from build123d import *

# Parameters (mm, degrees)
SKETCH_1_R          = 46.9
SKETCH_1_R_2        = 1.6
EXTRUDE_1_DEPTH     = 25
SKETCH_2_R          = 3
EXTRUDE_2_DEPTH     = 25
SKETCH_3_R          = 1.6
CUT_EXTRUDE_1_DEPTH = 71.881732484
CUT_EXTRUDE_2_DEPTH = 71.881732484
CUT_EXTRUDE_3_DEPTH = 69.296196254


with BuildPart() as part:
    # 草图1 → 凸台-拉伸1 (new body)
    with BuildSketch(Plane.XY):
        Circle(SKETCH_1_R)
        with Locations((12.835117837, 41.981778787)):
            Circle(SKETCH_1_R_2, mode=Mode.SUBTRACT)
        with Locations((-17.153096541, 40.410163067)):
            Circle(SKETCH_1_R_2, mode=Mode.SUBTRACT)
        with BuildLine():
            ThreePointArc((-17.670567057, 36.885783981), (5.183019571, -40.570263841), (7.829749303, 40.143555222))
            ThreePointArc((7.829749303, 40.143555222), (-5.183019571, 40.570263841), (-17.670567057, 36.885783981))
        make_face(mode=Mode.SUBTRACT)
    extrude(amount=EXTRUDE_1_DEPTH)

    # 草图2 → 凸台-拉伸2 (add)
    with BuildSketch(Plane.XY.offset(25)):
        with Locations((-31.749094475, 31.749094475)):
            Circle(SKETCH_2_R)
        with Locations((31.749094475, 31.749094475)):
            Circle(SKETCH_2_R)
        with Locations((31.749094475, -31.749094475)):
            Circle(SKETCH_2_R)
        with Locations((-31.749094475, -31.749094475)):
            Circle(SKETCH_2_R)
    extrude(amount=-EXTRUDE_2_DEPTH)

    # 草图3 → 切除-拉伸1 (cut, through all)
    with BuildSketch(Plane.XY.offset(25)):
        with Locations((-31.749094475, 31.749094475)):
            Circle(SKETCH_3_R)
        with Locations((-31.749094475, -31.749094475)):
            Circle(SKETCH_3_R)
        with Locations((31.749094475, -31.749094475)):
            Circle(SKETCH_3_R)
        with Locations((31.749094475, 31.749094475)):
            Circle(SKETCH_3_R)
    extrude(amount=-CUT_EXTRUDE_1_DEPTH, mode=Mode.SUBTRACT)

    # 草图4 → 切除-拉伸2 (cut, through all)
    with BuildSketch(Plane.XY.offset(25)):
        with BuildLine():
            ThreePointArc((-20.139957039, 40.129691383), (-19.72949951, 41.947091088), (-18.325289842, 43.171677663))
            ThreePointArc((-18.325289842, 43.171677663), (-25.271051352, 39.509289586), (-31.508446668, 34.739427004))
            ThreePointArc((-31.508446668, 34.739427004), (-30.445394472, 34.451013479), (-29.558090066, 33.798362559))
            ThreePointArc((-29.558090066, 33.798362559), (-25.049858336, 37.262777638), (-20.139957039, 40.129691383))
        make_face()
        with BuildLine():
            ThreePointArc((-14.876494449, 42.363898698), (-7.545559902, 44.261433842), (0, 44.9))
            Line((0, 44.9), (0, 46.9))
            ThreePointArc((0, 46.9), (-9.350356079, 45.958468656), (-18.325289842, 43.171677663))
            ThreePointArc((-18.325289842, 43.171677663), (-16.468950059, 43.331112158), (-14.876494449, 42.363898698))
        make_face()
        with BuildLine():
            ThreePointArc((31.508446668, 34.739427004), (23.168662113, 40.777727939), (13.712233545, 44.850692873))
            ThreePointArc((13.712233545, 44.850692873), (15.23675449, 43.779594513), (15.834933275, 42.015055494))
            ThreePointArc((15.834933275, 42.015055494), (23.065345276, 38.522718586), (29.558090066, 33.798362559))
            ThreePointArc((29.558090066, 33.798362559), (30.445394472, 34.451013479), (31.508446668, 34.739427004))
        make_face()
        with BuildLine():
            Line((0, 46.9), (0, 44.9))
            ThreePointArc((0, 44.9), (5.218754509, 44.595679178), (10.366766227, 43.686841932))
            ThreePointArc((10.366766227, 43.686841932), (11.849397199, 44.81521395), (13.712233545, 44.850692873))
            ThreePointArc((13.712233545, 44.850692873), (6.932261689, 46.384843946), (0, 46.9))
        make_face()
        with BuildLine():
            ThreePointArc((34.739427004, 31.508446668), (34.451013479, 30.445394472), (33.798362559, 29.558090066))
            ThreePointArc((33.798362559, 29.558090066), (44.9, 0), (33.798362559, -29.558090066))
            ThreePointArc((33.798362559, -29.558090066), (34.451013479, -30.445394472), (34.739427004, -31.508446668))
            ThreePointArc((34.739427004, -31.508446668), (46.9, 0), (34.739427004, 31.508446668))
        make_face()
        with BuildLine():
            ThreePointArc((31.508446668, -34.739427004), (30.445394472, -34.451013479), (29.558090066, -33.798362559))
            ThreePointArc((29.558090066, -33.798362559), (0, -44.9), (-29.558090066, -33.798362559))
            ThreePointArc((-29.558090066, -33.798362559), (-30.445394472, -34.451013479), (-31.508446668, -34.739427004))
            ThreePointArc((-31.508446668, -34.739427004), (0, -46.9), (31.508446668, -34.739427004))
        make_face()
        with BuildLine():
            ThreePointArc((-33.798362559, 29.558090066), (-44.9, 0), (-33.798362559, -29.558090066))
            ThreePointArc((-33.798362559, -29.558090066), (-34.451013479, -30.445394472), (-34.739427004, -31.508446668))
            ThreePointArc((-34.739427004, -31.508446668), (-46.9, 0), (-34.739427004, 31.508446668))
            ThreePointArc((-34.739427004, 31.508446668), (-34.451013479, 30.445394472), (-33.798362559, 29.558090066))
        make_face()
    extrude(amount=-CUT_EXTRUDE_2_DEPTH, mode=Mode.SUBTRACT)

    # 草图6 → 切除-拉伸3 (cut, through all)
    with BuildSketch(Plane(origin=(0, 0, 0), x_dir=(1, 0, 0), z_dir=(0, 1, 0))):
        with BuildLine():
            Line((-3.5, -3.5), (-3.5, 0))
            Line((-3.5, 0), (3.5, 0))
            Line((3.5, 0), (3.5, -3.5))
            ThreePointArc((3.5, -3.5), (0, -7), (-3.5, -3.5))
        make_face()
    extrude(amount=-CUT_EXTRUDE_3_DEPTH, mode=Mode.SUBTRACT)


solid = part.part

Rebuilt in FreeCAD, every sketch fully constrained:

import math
import FreeCAD as App
import Part
import Sketcher

doc = App.newDocument("Part")
body = doc.addObject("PartDesign::Body", "Body")

# Sketch on XY plane
sketch1 = doc.addObject("Sketcher::SketchObject", "Sketch")
body.addObject(sketch1)
sketch1.AttachmentSupport = (doc.XY_Plane, [""])
sketch1.MapMode = "FlatFace"
sketch1.addGeometry(Part.Circle(App.Vector(0, 0, 0), App.Vector(0, 0, 1), 46.9), False)
sketch1.addGeometry(Part.ArcOfCircle(Part.Circle(App.Vector(0, 0, 0), App.Vector(0, 0, 1), 40.9), math.radians(116), math.radians(439)), False)
sketch1.addGeometry(Part.ArcOfCircle(Part.Circle(App.Vector(0, 0, 0), App.Vector(0, 0, 1), 40.9), math.radians(79), math.radians(116)), False)
sketch1.addGeometry(Part.Circle(App.Vector(-17.2, 40.4, 0), App.Vector(0, 0, 1), 1.6), False)
sketch1.addGeometry(Part.Circle(App.Vector(12.8, 42, 0), App.Vector(0, 0, 1), 1.6), False)
sketch1.addConstraint(Sketcher.Constraint("Tangent", 1, 1, 2, 2))
sketch1.addConstraint(Sketcher.Constraint("Coincident", 2, 1, 1, 2))
sketch1.addConstraint(Sketcher.Constraint("Coincident", 0, 3, -1, 1))
sketch1.addConstraint(Sketcher.Constraint("Coincident", 1, 3, -1, 1))
sketch1.addConstraint(Sketcher.Constraint("Equal", 3, 4))
sketch1.addConstraint(Sketcher.Constraint("Diameter", 0, 93.8))
sketch1.addConstraint(Sketcher.Constraint("Diameter", 3, 3.2))
sketch1.addConstraint(Sketcher.Constraint("Radius", 1, 40.9))
sketch1.addConstraint(Sketcher.Constraint("DistanceY", -1, 1, 4, 3, 41.981779))
sketch1.addConstraint(Sketcher.Constraint("DistanceX", -1, 1, 2, 1, 7.829749))
sketch1.addConstraint(Sketcher.Constraint("DistanceX", 1, 1, 3, 3, 0.517471))
sketch1.addConstraint(Sketcher.Constraint("DistanceY", 1, 1, 3, 3, 3.524379))
sketch1.addConstraint(Sketcher.Constraint("DistanceX", 2, 1, 4, 3, 5.005369))
sketch1.addConstraint(Sketcher.Constraint("DistanceY", 1, 1, 2, 1, 3.257771))
pad1 = doc.addObject("PartDesign::Pad", "Pad")
body.addObject(pad1)
pad1.Profile = sketch1
pad1.Length = 25

# Sketch on XY plane
sketch2 = doc.addObject("Sketcher::SketchObject", "Sketch001")
body.addObject(sketch2)
sketch2.AttachmentSupport = (doc.XY_Plane, [""])
sketch2.MapMode = "FlatFace"
sketch2.AttachmentOffset = App.Placement(App.Vector(0, 0, 25), App.Rotation())
sketch2.addGeometry(Part.Circle(App.Vector(-31.7, 31.7, 0), App.Vector(0, 0, 1), 3), False)
sketch2.addGeometry(Part.Circle(App.Vector(31.7, 31.7, 0), App.Vector(0, 0, 1), 3), False)
sketch2.addGeometry(Part.Circle(App.Vector(31.7, -31.7, 0), App.Vector(0, 0, 1), 3), False)
sketch2.addGeometry(Part.Circle(App.Vector(-31.7, -31.7, 0), App.Vector(0, 0, 1), 3), False)
sketch2.addConstraint(Sketcher.Constraint("Equal", 0, 1))
sketch2.addConstraint(Sketcher.Constraint("Equal", 1, 2))
sketch2.addConstraint(Sketcher.Constraint("Equal", 2, 3))
sketch2.addConstraint(Sketcher.Constraint("Symmetric", 0, 3, 2, 3, -1, 1))
sketch2.addConstraint(Sketcher.Constraint("Symmetric", 1, 3, 3, 3, -1, 1))
sketch2.addConstraint(Sketcher.Constraint("Symmetric", 0, 3, 1, 3, -2))
sketch2.addConstraint(Sketcher.Constraint("Diameter", 0, 6.0))
sketch2.addConstraint(Sketcher.Constraint("DistanceX", 0, 3, 1, 3, 63.498189))
sketch2.addConstraint(Sketcher.Constraint("DistanceY", 2, 3, 1, 3, 63.498189))
pad2 = doc.addObject("PartDesign::Pad", "Pad001")
body.addObject(pad2)
pad2.Profile = sketch2
pad2.Length = 25
pad2.Reversed = True

# Sketch on XY plane
sketch3 = doc.addObject("Sketcher::SketchObject", "Sketch002")
body.addObject(sketch3)
sketch3.AttachmentSupport = (doc.XY_Plane, [""])
sketch3.MapMode = "FlatFace"
sketch3.AttachmentOffset = App.Placement(App.Vector(0, 0, 25), App.Rotation())
sketch3.addGeometry(Part.Circle(App.Vector(-31.7, 31.7, 0), App.Vector(0, 0, 1), 1.6), False)
sketch3.addGeometry(Part.Circle(App.Vector(-31.7, -31.7, 0), App.Vector(0, 0, 1), 1.6), False)
sketch3.addGeometry(Part.Circle(App.Vector(31.7, -31.7, 0), App.Vector(0, 0, 1), 1.6), False)
sketch3.addGeometry(Part.Circle(App.Vector(31.7, 31.7, 0), App.Vector(0, 0, 1), 1.6), False)
sketch3.addConstraint(Sketcher.Constraint("Equal", 0, 1))
sketch3.addConstraint(Sketcher.Constraint("Equal", 1, 2))
sketch3.addConstraint(Sketcher.Constraint("Equal", 2, 3))
sketch3.addConstraint(Sketcher.Constraint("Symmetric", 0, 3, 2, 3, -1, 1))
sketch3.addConstraint(Sketcher.Constraint("Symmetric", 1, 3, 3, 3, -1, 1))
sketch3.addConstraint(Sketcher.Constraint("Symmetric", 1, 3, 2, 3, -2))
sketch3.addConstraint(Sketcher.Constraint("Diameter", 0, 3.2))
sketch3.addConstraint(Sketcher.Constraint("DistanceY", 1, 3, 0, 3, 63.498189))
sketch3.addConstraint(Sketcher.Constraint("DistanceX", 1, 3, 2, 3, 63.498189))
pocket1 = doc.addObject("PartDesign::Pocket", "Pocket")
body.addObject(pocket1)
pocket1.Profile = sketch3
pocket1.Type = "ThroughAll"

# Sketch on XY plane
sketch4 = doc.addObject("Sketcher::SketchObject", "Sketch003")
body.addObject(sketch4)
sketch4.AttachmentSupport = (doc.XY_Plane, [""])
sketch4.MapMode = "FlatFace"
sketch4.AttachmentOffset = App.Placement(App.Vector(0, 0, 25), App.Rotation())
sketch4.addGeometry(Part.ArcOfCircle(Part.Circle(App.Vector(-17.2, 40.4, 0), App.Vector(0, 0, 1), 3), math.radians(113), math.radians(185)), False)
sketch4.addGeometry(Part.ArcOfCircle(Part.Circle(App.Vector(0, 0, 0), App.Vector(0, 0, 1), 46.9), math.radians(113), math.radians(132.21)), False)
sketch4.addGeometry(Part.ArcOfCircle(Part.Circle(App.Vector(-31.7, 31.7, 0), App.Vector(0, 0, 1), 3), math.radians(43), math.radians(85)), False)
sketch4.addGeometry(Part.ArcOfCircle(Part.Circle(App.Vector(0, 0, 0), App.Vector(0, 0, 1), 44.9), math.radians(116.65), math.radians(131.17)), False)
sketch4.addGeometry(Part.ArcOfCircle(Part.Circle(App.Vector(0, 0, 0), App.Vector(0, 0, 1), 44.9), math.radians(90), math.radians(109.35)), False)
sketch4.addGeometry(Part.ArcOfCircle(Part.Circle(App.Vector(0, 0, 0), App.Vector(0, 0, 1), 44.9), math.radians(76.65), math.radians(90)), False)
sketch4.addGeometry(Part.ArcOfCircle(Part.Circle(App.Vector(12.8, 42, 0), App.Vector(0, 0, 1), 3), math.radians(73), math.radians(145)), False)
sketch4.addGeometry(Part.ArcOfCircle(Part.Circle(App.Vector(0, 0, 0), App.Vector(0, 0, 1), 46.9), math.radians(73), math.radians(90)), False)
sketch4.addGeometry(Part.ArcOfCircle(Part.Circle(App.Vector(0, 0, 0), App.Vector(0, 0, 1), 46.9), math.radians(90), math.radians(113)), False)
sketch4.addGeometry(Part.ArcOfCircle(Part.Circle(App.Vector(-17.2, 40.4, 0), App.Vector(0, 0, 1), 3), math.radians(41), math.radians(113)), False)
sketch4.addGeometry(Part.ArcOfCircle(Part.Circle(App.Vector(0, 0, 0), App.Vector(0, 0, 1), 46.9), math.radians(48), math.radians(73)), False)
sketch4.addGeometry(Part.ArcOfCircle(Part.Circle(App.Vector(12.8, 42, 0), App.Vector(0, 0, 1), 3), math.radians(1), math.radians(73)), False)
sketch4.addGeometry(Part.ArcOfCircle(Part.Circle(App.Vector(0, 0, 0), App.Vector(0, 0, 1), 44.9), math.radians(49), math.radians(69)), False)
sketch4.addGeometry(Part.ArcOfCircle(Part.Circle(App.Vector(31.7, 31.7, 0), App.Vector(0, 0, 1), 3), math.radians(95), math.radians(137)), False)
sketch4.addGeometry(Part.ArcOfCircle(Part.Circle(App.Vector(31.7, 31.7, 0), App.Vector(0, 0, 1), 3), math.radians(-47), math.radians(-5)), False)
sketch4.addGeometry(Part.ArcOfCircle(Part.Circle(App.Vector(0, 0, 0), App.Vector(0, 0, 1), 44.9), math.radians(-41), math.radians(41)), False)
sketch4.addGeometry(Part.ArcOfCircle(Part.Circle(App.Vector(31.7, -31.7, 0), App.Vector(0, 0, 1), 3), math.radians(5), math.radians(47)), False)
sketch4.addGeometry(Part.ArcOfCircle(Part.Circle(App.Vector(0, 0, 0), App.Vector(0, 0, 1), 46.9), math.radians(-42), math.radians(42)), False)
sketch4.addGeometry(Part.ArcOfCircle(Part.Circle(App.Vector(31.7, -31.7, 0), App.Vector(0, 0, 1), 3), math.radians(-137), math.radians(-95)), False)
sketch4.addGeometry(Part.ArcOfCircle(Part.Circle(App.Vector(0, 0, 0), App.Vector(0, 0, 1), 44.9), math.radians(-131), math.radians(-49)), False)
sketch4.addGeometry(Part.ArcOfCircle(Part.Circle(App.Vector(-31.7, -31.7, 0), App.Vector(0, 0, 1), 3), math.radians(-85), math.radians(-43)), False)
sketch4.addGeometry(Part.ArcOfCircle(Part.Circle(App.Vector(0, 0, 0), App.Vector(0, 0, 1), 46.9), math.radians(-132), math.radians(-48)), False)
sketch4.addGeometry(Part.ArcOfCircle(Part.Circle(App.Vector(0, 0, 0), App.Vector(0, 0, 1), 44.9), math.radians(139), math.radians(221)), False)
sketch4.addGeometry(Part.ArcOfCircle(Part.Circle(App.Vector(-31.7, 31.7, 0), App.Vector(0, 0, 1), 3), math.radians(-175), math.radians(-133)), False)
sketch4.addGeometry(Part.ArcOfCircle(Part.Circle(App.Vector(0, 0, 0), App.Vector(0, 0, 1), 46.9), math.radians(138), math.radians(222)), False)
sketch4.addGeometry(Part.ArcOfCircle(Part.Circle(App.Vector(-31.7, -31.7, 0), App.Vector(0, 0, 1), 3), math.radians(133), math.radians(175)), False)
sketch4.addConstraint(Sketcher.Constraint("Tangent", 0, 1, 1, 1))
sketch4.addConstraint(Sketcher.Constraint("Coincident", 1, 2, 2, 2))
sketch4.addConstraint(Sketcher.Constraint("Coincident", 2, 1, 3, 2))
sketch4.addConstraint(Sketcher.Constraint("Coincident", 3, 1, 0, 2))
sketch4.addConstraint(Sketcher.Constraint("Tangent", 4, 1, 5, 2))
sketch4.addConstraint(Sketcher.Constraint("Coincident", 5, 1, 6, 2))
sketch4.addConstraint(Sketcher.Constraint("Tangent", 6, 1, 7, 1))
sketch4.addConstraint(Sketcher.Constraint("Tangent", 7, 2, 8, 1))
sketch4.addConstraint(Sketcher.Constraint("Tangent", 8, 2, 9, 2))
sketch4.addConstraint(Sketcher.Constraint("Coincident", 9, 1, 4, 2))
sketch4.addConstraint(Sketcher.Constraint("Tangent", 10, 2, 11, 2))
sketch4.addConstraint(Sketcher.Constraint("Coincident", 11, 1, 12, 2))
sketch4.addConstraint(Sketcher.Constraint("Coincident", 12, 1, 13, 2))
sketch4.addConstraint(Sketcher.Constraint("Coincident", 13, 1, 10, 1))
sketch4.addConstraint(Sketcher.Constraint("Coincident", 14, 1, 15, 2))
sketch4.addConstraint(Sketcher.Constraint("Coincident", 15, 1, 16, 2))
sketch4.addConstraint(Sketcher.Constraint("Coincident", 16, 1, 17, 1))
sketch4.addConstraint(Sketcher.Constraint("Coincident", 17, 2, 14, 2))
sketch4.addConstraint(Sketcher.Constraint("Coincident", 18, 1, 19, 2))
sketch4.addConstraint(Sketcher.Constraint("Coincident", 19, 1, 20, 2))
sketch4.addConstraint(Sketcher.Constraint("Coincident", 20, 1, 21, 1))
sketch4.addConstraint(Sketcher.Constraint("Coincident", 21, 2, 18, 2))
sketch4.addConstraint(Sketcher.Constraint("Coincident", 22, 1, 23, 2))
sketch4.addConstraint(Sketcher.Constraint("Coincident", 23, 1, 24, 1))
sketch4.addConstraint(Sketcher.Constraint("Coincident", 24, 2, 25, 2))
sketch4.addConstraint(Sketcher.Constraint("Coincident", 25, 1, 22, 2))
sketch4.addConstraint(Sketcher.Constraint("Coincident", 1, 3, -1, 1))
sketch4.addConstraint(Sketcher.Constraint("Coincident", 3, 3, -1, 1))
sketch4.addConstraint(Sketcher.Constraint("Coincident", 4, 3, -1, 1))
sketch4.addConstraint(Sketcher.Constraint("Coincident", 7, 3, -1, 1))
sketch4.addConstraint(Sketcher.Constraint("Coincident", 10, 3, -1, 1))
sketch4.addConstraint(Sketcher.Constraint("Coincident", 12, 3, -1, 1))
sketch4.addConstraint(Sketcher.Constraint("Coincident", 15, 3, -1, 1))
sketch4.addConstraint(Sketcher.Constraint("Coincident", 17, 3, -1, 1))
sketch4.addConstraint(Sketcher.Constraint("Coincident", 19, 3, -1, 1))
sketch4.addConstraint(Sketcher.Constraint("Coincident", 21, 3, -1, 1))
sketch4.addConstraint(Sketcher.Constraint("Coincident", 22, 3, -1, 1))
sketch4.addConstraint(Sketcher.Constraint("Coincident", 24, 3, -1, 1))
sketch4.addConstraint(Sketcher.Constraint("Coincident", 9, 3, 0, 3))
sketch4.addConstraint(Sketcher.Constraint("Coincident", 11, 3, 6, 3))
sketch4.addConstraint(Sketcher.Constraint("Coincident", 14, 3, 13, 3))
sketch4.addConstraint(Sketcher.Constraint("Coincident", 18, 3, 16, 3))
sketch4.addConstraint(Sketcher.Constraint("Coincident", 23, 3, 2, 3))
sketch4.addConstraint(Sketcher.Constraint("Coincident", 25, 3, 20, 3))
sketch4.addConstraint(Sketcher.Constraint("Coincident", 8, 2, 0, 1))
sketch4.addConstraint(Sketcher.Constraint("Equal", 0, 2))
sketch4.addConstraint(Sketcher.Constraint("Equal", 3, 4))
sketch4.addConstraint(Sketcher.Constraint("Equal", 4, 5))
sketch4.addConstraint(Sketcher.Constraint("Equal", 2, 6))
sketch4.addConstraint(Sketcher.Constraint("Equal", 8, 10))
sketch4.addConstraint(Sketcher.Constraint("Equal", 5, 12))
sketch4.addConstraint(Sketcher.Constraint("Equal", 11, 13))
sketch4.addConstraint(Sketcher.Constraint("Equal", 13, 14))
sketch4.addConstraint(Sketcher.Constraint("Equal", 12, 15))
sketch4.addConstraint(Sketcher.Constraint("Equal", 14, 16))
sketch4.addConstraint(Sketcher.Constraint("Equal", 10, 17))
sketch4.addConstraint(Sketcher.Constraint("Equal", 16, 18))
sketch4.addConstraint(Sketcher.Constraint("Equal", 15, 19))
sketch4.addConstraint(Sketcher.Constraint("Equal", 18, 20))
sketch4.addConstraint(Sketcher.Constraint("Equal", 17, 21))
sketch4.addConstraint(Sketcher.Constraint("Equal", 19, 22))
sketch4.addConstraint(Sketcher.Constraint("Equal", 20, 23))
sketch4.addConstraint(Sketcher.Constraint("Equal", 21, 24))
sketch4.addConstraint(Sketcher.Constraint("Equal", 23, 25))
sketch4.addConstraint(Sketcher.Constraint("Symmetric", 2, 3, 16, 3, -1, 1))
sketch4.addConstraint(Sketcher.Constraint("Symmetric", 13, 3, 20, 3, -1, 1))
sketch4.addConstraint(Sketcher.Constraint("Symmetric", 2, 3, 13, 3, -2))
sketch4.addConstraint(Sketcher.Constraint("PointOnObject", 4, 1, -2))
sketch4.addConstraint(Sketcher.Constraint("PointOnObject", 7, 2, -2))
sketch4.addConstraint(Sketcher.Constraint("Radius", 0, 3.0))
sketch4.addConstraint(Sketcher.Constraint("Radius", 1, 46.9))
sketch4.addConstraint(Sketcher.Constraint("Radius", 3, 44.9))
sketch4.addConstraint(Sketcher.Constraint("DistanceY", -1, 1, 9, 1, 42.363899))
sketch4.addConstraint(Sketcher.Constraint("DistanceY", 11, 3, 0, 1, 1.189899))
sketch4.addConstraint(Sketcher.Constraint("DistanceY", 2, 1, 0, 3, 6.611801))
sketch4.addConstraint(Sketcher.Constraint("DistanceY", 13, 3, 6, 1, 13.101598))
pocket2 = doc.addObject("PartDesign::Pocket", "Pocket001")
body.addObject(pocket2)
pocket2.Profile = sketch4
pocket2.Type = "ThroughAll"

# Sketch on XZ plane
sketch5 = doc.addObject("Sketcher::SketchObject", "Sketch004")
body.addObject(sketch5)
sketch5.AttachmentSupport = (doc.XZ_Plane, [""])
sketch5.MapMode = "FlatFace"
sketch5.addGeometry(Part.LineSegment(App.Vector(-3.5, 0, 0), App.Vector(-3.5, 3.5, 0)), False)
sketch5.addGeometry(Part.ArcOfCircle(Part.Circle(App.Vector(0, 3.5, 0), App.Vector(0, 0, 1), 3.5), math.radians(0), math.radians(180)), False)
sketch5.addGeometry(Part.LineSegment(App.Vector(3.5, 3.5, 0), App.Vector(3.5, 0, 0)), False)
sketch5.addGeometry(Part.LineSegment(App.Vector(3.5, 0, 0), App.Vector(-3.5, 0, 0)), False)
sketch5.addConstraint(Sketcher.Constraint("Tangent", 0, 2, 1, 2))
sketch5.addConstraint(Sketcher.Constraint("Tangent", 1, 1, 2, 1))
sketch5.addConstraint(Sketcher.Constraint("Coincident", 2, 2, 3, 1))
sketch5.addConstraint(Sketcher.Constraint("Coincident", 3, 2, 0, 1))
sketch5.addConstraint(Sketcher.Constraint("Vertical", 0))
sketch5.addConstraint(Sketcher.Constraint("Vertical", 2))
sketch5.addConstraint(Sketcher.Constraint("Horizontal", 3))
sketch5.addConstraint(Sketcher.Constraint("Symmetric", 2, 2, 3, 2, -1, 1))
sketch5.addConstraint(Sketcher.Constraint("Radius", 1, 3.5))
sketch5.addConstraint(Sketcher.Constraint("DistanceY", 0, 1, 0, 2, 3.5))
pocket3 = doc.addObject("PartDesign::Pocket", "Pocket002")
body.addObject(pocket3)
pocket3.Profile = sketch5
pocket3.Type = "ThroughAll"
pocket3.Reversed = True

doc.recompute()
